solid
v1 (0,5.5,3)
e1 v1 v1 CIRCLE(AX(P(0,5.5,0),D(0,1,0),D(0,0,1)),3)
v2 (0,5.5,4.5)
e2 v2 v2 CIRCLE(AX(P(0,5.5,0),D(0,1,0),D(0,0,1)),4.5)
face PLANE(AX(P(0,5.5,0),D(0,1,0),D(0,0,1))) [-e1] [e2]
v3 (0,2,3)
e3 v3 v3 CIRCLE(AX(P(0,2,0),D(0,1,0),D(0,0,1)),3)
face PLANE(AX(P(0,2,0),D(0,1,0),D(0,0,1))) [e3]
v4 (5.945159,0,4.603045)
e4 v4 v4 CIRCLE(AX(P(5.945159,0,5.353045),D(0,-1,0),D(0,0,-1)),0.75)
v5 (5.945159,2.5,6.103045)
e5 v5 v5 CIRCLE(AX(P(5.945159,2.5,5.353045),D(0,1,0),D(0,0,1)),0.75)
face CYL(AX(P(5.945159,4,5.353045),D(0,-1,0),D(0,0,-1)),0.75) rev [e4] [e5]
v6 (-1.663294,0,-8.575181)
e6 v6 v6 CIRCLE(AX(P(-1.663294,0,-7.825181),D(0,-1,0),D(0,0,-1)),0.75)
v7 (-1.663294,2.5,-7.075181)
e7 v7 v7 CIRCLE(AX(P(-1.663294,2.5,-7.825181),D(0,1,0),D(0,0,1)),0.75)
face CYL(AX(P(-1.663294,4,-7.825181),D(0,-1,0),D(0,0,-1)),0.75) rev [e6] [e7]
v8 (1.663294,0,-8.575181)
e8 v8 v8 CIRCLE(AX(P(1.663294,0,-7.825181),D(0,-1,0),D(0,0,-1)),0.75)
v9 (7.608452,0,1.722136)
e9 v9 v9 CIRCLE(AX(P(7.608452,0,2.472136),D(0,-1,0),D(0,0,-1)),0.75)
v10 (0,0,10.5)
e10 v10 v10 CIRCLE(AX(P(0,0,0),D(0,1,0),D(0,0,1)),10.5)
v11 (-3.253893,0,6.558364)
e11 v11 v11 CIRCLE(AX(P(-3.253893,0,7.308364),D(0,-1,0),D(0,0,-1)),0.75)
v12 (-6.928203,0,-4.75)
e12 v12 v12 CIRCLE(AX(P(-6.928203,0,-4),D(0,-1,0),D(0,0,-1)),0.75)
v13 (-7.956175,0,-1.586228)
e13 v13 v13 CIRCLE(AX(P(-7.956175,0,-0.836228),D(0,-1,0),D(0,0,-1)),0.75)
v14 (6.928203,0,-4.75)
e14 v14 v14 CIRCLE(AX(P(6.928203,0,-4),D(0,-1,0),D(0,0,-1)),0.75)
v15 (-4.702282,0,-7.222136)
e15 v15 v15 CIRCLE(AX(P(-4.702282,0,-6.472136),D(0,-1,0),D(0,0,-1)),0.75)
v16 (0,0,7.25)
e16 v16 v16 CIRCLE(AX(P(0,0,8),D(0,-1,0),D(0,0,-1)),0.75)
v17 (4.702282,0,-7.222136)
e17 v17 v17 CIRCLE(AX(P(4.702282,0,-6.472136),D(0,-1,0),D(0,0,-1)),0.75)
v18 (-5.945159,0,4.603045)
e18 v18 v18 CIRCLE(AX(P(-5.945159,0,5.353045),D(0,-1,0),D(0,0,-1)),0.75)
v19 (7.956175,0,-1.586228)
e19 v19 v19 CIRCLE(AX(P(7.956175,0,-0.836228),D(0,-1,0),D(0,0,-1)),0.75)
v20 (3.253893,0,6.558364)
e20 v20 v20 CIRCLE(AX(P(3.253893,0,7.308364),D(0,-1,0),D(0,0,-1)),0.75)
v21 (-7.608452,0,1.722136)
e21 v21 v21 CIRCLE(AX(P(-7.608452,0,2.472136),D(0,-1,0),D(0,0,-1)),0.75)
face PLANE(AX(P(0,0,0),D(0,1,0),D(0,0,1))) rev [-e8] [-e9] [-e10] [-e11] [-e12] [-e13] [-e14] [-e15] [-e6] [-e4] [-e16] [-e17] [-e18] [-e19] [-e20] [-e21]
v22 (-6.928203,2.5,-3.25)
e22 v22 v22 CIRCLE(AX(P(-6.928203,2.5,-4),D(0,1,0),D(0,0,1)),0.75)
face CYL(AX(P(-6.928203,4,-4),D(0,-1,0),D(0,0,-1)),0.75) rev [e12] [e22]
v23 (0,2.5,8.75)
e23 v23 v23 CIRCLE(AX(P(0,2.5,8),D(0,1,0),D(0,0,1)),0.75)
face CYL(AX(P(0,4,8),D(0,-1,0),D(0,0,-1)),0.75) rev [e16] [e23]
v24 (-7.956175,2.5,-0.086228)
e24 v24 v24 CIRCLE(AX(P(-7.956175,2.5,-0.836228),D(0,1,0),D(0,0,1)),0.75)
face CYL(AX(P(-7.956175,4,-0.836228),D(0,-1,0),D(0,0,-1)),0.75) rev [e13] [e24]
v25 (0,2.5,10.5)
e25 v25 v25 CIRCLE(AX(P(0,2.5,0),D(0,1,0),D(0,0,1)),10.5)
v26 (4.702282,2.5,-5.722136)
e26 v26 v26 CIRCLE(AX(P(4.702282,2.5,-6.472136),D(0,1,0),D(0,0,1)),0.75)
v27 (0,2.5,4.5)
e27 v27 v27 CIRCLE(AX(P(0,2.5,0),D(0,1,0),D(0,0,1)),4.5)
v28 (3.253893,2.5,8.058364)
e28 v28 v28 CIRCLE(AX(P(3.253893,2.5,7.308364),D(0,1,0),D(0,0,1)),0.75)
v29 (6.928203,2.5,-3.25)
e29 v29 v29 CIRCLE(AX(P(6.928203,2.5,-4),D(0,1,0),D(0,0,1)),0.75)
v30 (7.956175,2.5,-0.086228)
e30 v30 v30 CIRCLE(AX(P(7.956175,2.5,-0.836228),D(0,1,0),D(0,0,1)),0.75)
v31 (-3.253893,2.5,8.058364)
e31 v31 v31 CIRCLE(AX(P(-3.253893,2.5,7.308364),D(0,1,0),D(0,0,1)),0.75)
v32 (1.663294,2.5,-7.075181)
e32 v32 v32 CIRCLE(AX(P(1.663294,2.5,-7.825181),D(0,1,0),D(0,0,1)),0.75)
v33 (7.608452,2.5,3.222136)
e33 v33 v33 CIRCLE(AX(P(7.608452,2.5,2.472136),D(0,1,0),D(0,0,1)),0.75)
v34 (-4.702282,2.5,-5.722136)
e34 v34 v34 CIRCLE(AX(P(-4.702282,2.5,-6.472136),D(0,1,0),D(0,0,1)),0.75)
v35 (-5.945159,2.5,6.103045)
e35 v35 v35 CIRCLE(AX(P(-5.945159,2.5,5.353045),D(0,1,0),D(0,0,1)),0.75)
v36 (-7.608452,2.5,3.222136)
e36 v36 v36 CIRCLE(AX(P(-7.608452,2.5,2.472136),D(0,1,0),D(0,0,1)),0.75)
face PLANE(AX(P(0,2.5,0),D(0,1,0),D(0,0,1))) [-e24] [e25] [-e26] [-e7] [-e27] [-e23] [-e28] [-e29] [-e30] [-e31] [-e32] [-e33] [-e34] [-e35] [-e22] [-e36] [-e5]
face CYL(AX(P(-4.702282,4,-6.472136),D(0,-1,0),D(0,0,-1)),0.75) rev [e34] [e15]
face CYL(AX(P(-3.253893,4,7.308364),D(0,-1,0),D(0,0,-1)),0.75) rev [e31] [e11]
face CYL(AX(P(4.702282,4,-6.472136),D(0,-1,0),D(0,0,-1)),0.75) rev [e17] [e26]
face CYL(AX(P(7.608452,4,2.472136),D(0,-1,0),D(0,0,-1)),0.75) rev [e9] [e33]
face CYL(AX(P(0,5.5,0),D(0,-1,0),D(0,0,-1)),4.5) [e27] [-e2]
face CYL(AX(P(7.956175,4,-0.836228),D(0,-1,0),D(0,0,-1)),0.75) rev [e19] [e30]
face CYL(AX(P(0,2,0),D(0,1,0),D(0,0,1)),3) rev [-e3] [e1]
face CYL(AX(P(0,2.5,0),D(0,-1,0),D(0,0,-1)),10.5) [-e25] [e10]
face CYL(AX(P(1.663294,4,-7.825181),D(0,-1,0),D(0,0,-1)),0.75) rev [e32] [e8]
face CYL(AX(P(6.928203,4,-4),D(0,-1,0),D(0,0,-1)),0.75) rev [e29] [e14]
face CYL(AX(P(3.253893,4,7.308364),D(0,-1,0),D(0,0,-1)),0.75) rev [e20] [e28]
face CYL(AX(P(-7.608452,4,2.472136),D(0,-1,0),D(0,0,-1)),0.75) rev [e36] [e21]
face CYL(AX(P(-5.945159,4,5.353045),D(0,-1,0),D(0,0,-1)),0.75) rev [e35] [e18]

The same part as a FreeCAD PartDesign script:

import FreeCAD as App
import Part
import Sketcher
from FreeCAD import Vector

doc = App.newDocument("Part")
body = doc.addObject("PartDesign::Body", "Body")

# Sketch on XZ plane
sketch1 = body.newObject("Sketcher::SketchObject", "Sketch")
sketch1.AttachmentSupport = (doc.getObject("XZ_Plane"), [""])
sketch1.MapMode = "FlatFace"
sketch1.addGeometry(Part.Circle(Vector(0, 0, 0), Vector(0, 0, 1), 10), False)
sketch1.addConstraint(Sketcher.Constraint("Coincident", 0, 3, -1, 1))
sketch1.addConstraint(Sketcher.Constraint("Diameter", 0, 21.0))
pad1 = body.newObject("PartDesign::Pad", "Pad")
pad1.Profile = sketch1
pad1.Length = 2.5
pad1.Reversed = True

# Sketch on XZ plane
sketch2 = body.newObject("Sketcher::SketchObject", "Sketch001")
sketch2.AttachmentSupport = (doc.getObject("XZ_Plane"), [""])
sketch2.MapMode = "FlatFace"
sketch2.AttachmentOffset = App.Placement(Vector(0, 0, -2.5), App.Rotation())
sketch2.addGeometry(Part.Circle(Vector(0, 0, 0), Vector(0, 0, 1), 4.5), False)
sketch2.addConstraint(Sketcher.Constraint("Coincident", 0, 3, -1, 1))
sketch2.addConstraint(Sketcher.Constraint("Diameter", 0, 9.0))
pad2 = body.newObject("PartDesign::Pad", "Pad001")
pad2.Profile = sketch2
pad2.Length = 3
pad2.Reversed = True

# Sketch on XZ plane
sketch3 = body.newObject("Sketcher::SketchObject", "Sketch002")
sketch3.AttachmentSupport = (doc.getObject("XZ_Plane"), [""])
sketch3.MapMode = "FlatFace"
sketch3.AttachmentOffset = App.Placement(Vector(0, 0, -5.5), App.Rotation())
sketch3.addGeometry(Part.Circle(Vector(0, 0, 0), Vector(0, 0, 1), 3), False)
sketch3.addConstraint(Sketcher.Constraint("Coincident", 0, 3, -1, 1))
sketch3.addConstraint(Sketcher.Constraint("Diameter", 0, 6.0))
pocket1 = body.newObject("PartDesign::Pocket", "Pocket")
pocket1.Profile = sketch3
pocket1.Length = 3.5
pocket1.Reversed = True

# Sketch on XZ plane
sketch4 = body.newObject("Sketcher::SketchObject", "Sketch003")
sketch4.AttachmentSupport = (doc.getObject("XZ_Plane"), [""])
sketch4.MapMode = "FlatFace"
sketch4.addGeometry(Part.Circle(Vector(0, 8, 0), Vector(0, 0, 1), 0.8), False)
sketch4.addGeometry(Part.Circle(Vector(3.3, 7.3, 0), Vector(0, 0, 1), 0.8), False)
sketch4.addGeometry(Part.Circle(Vector(5.9, 5.4, 0), Vector(0, 0, 1), 0.8), False)
sketch4.addGeometry(Part.Circle(Vector(7.6, 2.5, 0), Vector(0, 0, 1), 0.8), False)
sketch4.addGeometry(Part.Circle(Vector(8, -0.8, 0), Vector(0, 0, 1), 0.8), False)
sketch4.addGeometry(Part.Circle(Vector(6.9, -4, 0), Vector(0, 0, 1), 0.8), False)
sketch4.addGeometry(Part.Circle(Vector(4.7, -6.5, 0), Vector(0, 0, 1), 0.8), False)
sketch4.addGeometry(Part.Circle(Vector(1.7, -7.8, 0), Vector(0, 0, 1), 0.8), False)
sketch4.addGeometry(Part.Circle(Vector(-1.7, -7.8, 0), Vector(0, 0, 1), 0.8), False)
sketch4.addGeometry(Part.Circle(Vector(-4.7, -6.5, 0), Vector(0, 0, 1), 0.8), False)
sketch4.addGeometry(Part.Circle(Vector(-6.9, -4, 0), Vector(0, 0, 1), 0.8), False)
sketch4.addGeometry(Part.Circle(Vector(-8, -0.8, 0), Vector(0, 0, 1), 0.8), False)
sketch4.addGeometry(Part.Circle(Vector(-7.6, 2.5, 0), Vector(0, 0, 1), 0.8), False)
sketch4.addGeometry(Part.Circle(Vector(-5.9, 5.4, 0), Vector(0, 0, 1), 0.8), False)
sketch4.addGeometry(Part.Circle(Vector(-3.3, 7.3, 0), Vector(0, 0, 1), 0.8), False)
sketch4.addConstraint(Sketcher.Constraint("Equal", 0, 1))
sketch4.addConstraint(Sketcher.Constraint("Equal", 1, 2))
sketch4.addConstraint(Sketcher.Constraint("Equal", 2, 3))
sketch4.addConstraint(Sketcher.Constraint("Equal", 3, 4))
sketch4.addConstraint(Sketcher.Constraint("Equal", 4, 5))
sketch4.addConstraint(Sketcher.Constraint("Equal", 5, 6))
sketch4.addConstraint(Sketcher.Constraint("Equal", 6, 7))
sketch4.addConstraint(Sketcher.Constraint("Equal", 7, 8))
sketch4.addConstraint(Sketcher.Constraint("Equal", 8, 9))
sketch4.addConstraint(Sketcher.Constraint("Equal", 9, 10))
sketch4.addConstraint(Sketcher.Constraint("Equal", 10, 11))
sketch4.addConstraint(Sketcher.Constraint("Equal", 11, 12))
sketch4.addConstraint(Sketcher.Constraint("Equal", 12, 13))
sketch4.addConstraint(Sketcher.Constraint("Equal", 13, 14))
sketch4.addConstraint(Sketcher.Constraint("Symmetric", 7, 3, 8, 3, -2))
sketch4.addConstraint(Sketcher.Constraint("Symmetric", 6, 3, 9, 3, -2))
sketch4.addConstraint(Sketcher.Constraint("Symmetric", 5, 3, 10, 3, -2))
sketch4.addConstraint(Sketcher.Constraint("Symmetric", 4, 3, 11, 3, -2))
sketch4.addConstraint(Sketcher.Constraint("Symmetric", 3, 3, 12, 3, -2))
sketch4.addConstraint(Sketcher.Constraint("Symmetric", 2, 3, 13, 3, -2))
sketch4.addConstraint(Sketcher.Constraint("Symmetric", 1, 3, 14, 3, -2))
sketch4.addConstraint(Sketcher.Constraint("PointOnObject", 0, 3, -2))
sketch4.addConstraint(Sketcher.Constraint("Diameter", 0, 1.5))
sketch4.addConstraint(Sketcher.Constraint("DistanceY", -1, 1, 0, 3, 8.0))
sketch4.addConstraint(Sketcher.Constraint("DistanceY", 5, 3, -1, 1, 4.0))
sketch4.addConstraint(Sketcher.Constraint("DistanceY", 6, 3, 1, 3, 13.7805))
sketch4.addConstraint(Sketcher.Constraint("DistanceX", -1, 1, 2, 3, 5.945159))
sketch4.addConstraint(Sketcher.Constraint("DistanceY", 7, 3, -1, 1, 7.825181))
sketch4.addConstraint(Sketcher.Constraint("DistanceY", 2, 3, 1, 3, 1.955319))
sketch4.addConstraint(Sketcher.Constraint("DistanceY", 3, 3, 2, 3, 2.880909))
sketch4.addConstraint(Sketcher.Constraint("DistanceX", 1, 3, 3, 3, 4.354559))
sketch4.addConstraint(Sketcher.Constraint("DistanceY", 4, 3, 1, 3, 8.144591))
sketch4.addConstraint(Sketcher.Constraint("DistanceX", 5, 3, 4, 3, 1.027972))
sketch4.addConstraint(Sketcher.Constraint("DistanceX", 5, 3, 3, 3, 0.680249))
sketch4.addConstraint(Sketcher.Constraint("DistanceX", 6, 3, 5, 3, 2.225921))
sketch4.addConstraint(Sketcher.Constraint("DistanceX", 7, 3, 6, 3, 3.038988))
sketch4.addConstraint(Sketcher.Constraint("DistanceX", 8, 3, 4, 3, 9.619469))
sketch4.addConstraint(Sketcher.Constraint("DistanceY", -1, 1, 1, 3, 7.308364))
pocket2 = body.newObject("PartDesign::Pocket", "Pocket001")
pocket2.Profile = sketch4
pocket2.Length = 4

doc.recompute()
